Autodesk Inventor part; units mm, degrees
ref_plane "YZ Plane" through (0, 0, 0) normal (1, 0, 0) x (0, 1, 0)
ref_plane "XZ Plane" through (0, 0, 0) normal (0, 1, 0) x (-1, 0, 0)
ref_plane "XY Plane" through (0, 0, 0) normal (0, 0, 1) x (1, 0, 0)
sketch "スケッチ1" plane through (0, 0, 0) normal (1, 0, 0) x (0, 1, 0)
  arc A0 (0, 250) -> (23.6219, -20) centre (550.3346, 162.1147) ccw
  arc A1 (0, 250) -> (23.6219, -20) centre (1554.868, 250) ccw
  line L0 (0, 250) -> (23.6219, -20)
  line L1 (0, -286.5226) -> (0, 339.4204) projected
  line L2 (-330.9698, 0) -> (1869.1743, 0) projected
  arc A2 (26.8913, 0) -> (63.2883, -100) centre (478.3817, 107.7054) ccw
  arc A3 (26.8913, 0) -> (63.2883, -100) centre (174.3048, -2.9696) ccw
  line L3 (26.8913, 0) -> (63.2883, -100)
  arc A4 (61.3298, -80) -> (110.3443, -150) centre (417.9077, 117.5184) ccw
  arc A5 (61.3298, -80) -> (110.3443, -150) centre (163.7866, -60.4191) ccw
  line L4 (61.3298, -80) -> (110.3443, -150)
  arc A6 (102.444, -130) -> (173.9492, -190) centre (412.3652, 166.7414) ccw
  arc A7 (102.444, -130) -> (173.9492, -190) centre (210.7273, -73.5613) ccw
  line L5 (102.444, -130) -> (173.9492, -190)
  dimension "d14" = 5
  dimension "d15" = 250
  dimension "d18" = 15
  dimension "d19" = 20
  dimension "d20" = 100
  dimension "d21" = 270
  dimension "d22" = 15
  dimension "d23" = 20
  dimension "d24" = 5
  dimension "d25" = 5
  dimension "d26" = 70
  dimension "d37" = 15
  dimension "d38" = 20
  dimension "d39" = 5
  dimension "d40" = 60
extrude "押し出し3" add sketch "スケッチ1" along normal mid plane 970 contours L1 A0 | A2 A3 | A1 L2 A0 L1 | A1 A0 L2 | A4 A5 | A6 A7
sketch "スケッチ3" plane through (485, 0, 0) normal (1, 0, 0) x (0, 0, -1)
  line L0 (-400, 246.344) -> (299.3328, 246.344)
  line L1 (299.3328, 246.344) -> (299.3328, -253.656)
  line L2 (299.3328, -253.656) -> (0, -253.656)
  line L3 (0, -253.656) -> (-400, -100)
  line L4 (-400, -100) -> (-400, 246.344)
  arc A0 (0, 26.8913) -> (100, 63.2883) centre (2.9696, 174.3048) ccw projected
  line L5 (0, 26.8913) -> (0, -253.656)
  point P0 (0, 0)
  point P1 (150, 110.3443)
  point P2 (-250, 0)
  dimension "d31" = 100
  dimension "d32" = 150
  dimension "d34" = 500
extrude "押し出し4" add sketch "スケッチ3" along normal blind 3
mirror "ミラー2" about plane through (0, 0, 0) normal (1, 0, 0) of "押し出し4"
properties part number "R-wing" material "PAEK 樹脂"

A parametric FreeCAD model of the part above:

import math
import FreeCAD as App
import Part
import Sketcher

V = App.Vector
Q = App.Units.Quantity


def add_polygon(sketch, points):
    """Adds a closed chain of lines whose ends are joined by coincident constraints."""
    first, n = sketch.GeometryCount, len(points)
    for a, b in zip(points, points[1:] + points[:1]):
        sketch.addGeometry(Part.LineSegment(App.Vector(*a, 0), App.Vector(*b, 0)), False)
    for i in range(n):
        sketch.addConstraint(Sketcher.Constraint("Coincident", first + i, 2, first + (i + 1) % n, 1))

doc = App.newDocument("Part")
body = doc.addObject("PartDesign::Body", "Body")
body.AllowCompound = True

# Sketch on YZ plane
sketch1 = body.newObject("Sketcher::SketchObject", "Sketch")
sketch1.AttachmentSupport = (doc.getObject("YZ_Plane"), [""])
sketch1.MapMode = "FlatFace"
sketch1.addGeometry([
    Part.ArcOfCircle(Part.Circle(V(550, 162, 0), V(0, 0, 1), 557), math.radians(171), math.radians(199)),  # 0
    Part.ArcOfCircle(Part.Circle(V(1555, 250, 0), V(0, 0, 1), 1555), math.radians(-180), math.radians(-170)),  # 1
    Part.ArcOfCircle(Part.Circle(V(478, 108, 0), V(0, 0, 1), 464), math.radians(-166.58), math.radians(-153.42)),  # 2
    Part.ArcOfCircle(Part.Circle(V(174, -3, 0), V(0, 0, 1), 147), math.radians(179), math.radians(221)),  # 3
    Part.ArcOfCircle(Part.Circle(V(418, 118, 0), V(0, 0, 1), 408), math.radians(-151.02), math.radians(-138.98)),  # 4
    Part.ArcOfCircle(Part.Circle(V(164, -60, 0), V(0, 0, 1), 104), math.radians(-169), math.radians(-121)),  # 5
    Part.ArcOfCircle(Part.Circle(V(412, 167, 0), V(0, 0, 1), 429), math.radians(-136.24), math.radians(-123.76)),  # 6
    Part.ArcOfCircle(Part.Circle(V(211, -74, 0), V(0, 0, 1), 122), math.radians(-152), math.radians(-108)),  # 7
], False)
sketch1.addConstraint([
    Sketcher.Constraint("Coincident", 0, 1, 1, 1),
    Sketcher.Constraint("Coincident", 1, 2, 0, 2),
    Sketcher.Constraint("Coincident", 2, 1, 3, 1),
    Sketcher.Constraint("Coincident", 3, 2, 2, 2),
    Sketcher.Constraint("Coincident", 4, 1, 5, 1),
    Sketcher.Constraint("Coincident", 5, 2, 4, 2),
    Sketcher.Constraint("Coincident", 6, 1, 7, 1),
    Sketcher.Constraint("Coincident", 7, 2, 6, 2),
    Sketcher.Constraint("PointOnObject", 0, 1, -2),
    Sketcher.Constraint("PointOnObject", 2, 1, -1),
    Sketcher.Constraint("DistanceY", -1, 1, 0, 1, Q("250 mm")),
    Sketcher.Constraint("DistanceY", 1, 2, -1, 1, Q("20 mm")),
    Sketcher.Constraint("DistanceY", 3, 2, -1, 1, Q("100 mm")),
    Sketcher.Constraint("DistanceY", 3, 2, 4, 1, Q("20 mm")),
    Sketcher.Constraint("DistanceY", 5, 2, 4, 1, Q("70 mm")),
    Sketcher.Constraint("DistanceY", 5, 2, 6, 1, Q("20 mm")),
    Sketcher.Constraint("DistanceY", 7, 2, 6, 1, Q("60 mm")),
    Sketcher.Constraint("Radius", 2, Q("464.162 mm")),
    Sketcher.Constraint("Radius", 5, Q("104.311 mm")),
    Sketcher.Constraint("Radius", 7, Q("122.109 mm")),
    Sketcher.Constraint("DistanceY", -1, 1, 1, 3, Q("250.0002 mm")),
    Sketcher.Constraint("Radius", 0, Q("557.3078 mm")),
    Sketcher.Constraint("Radius", 1, Q("1554.8731 mm")),
    Sketcher.Constraint("Radius", 3, Q("147.4434 mm")),
    Sketcher.Constraint("Radius", 4, Q("407.6314 mm")),
    Sketcher.Constraint("Radius", 6, Q("429.0765 mm")),
    Sketcher.Constraint("DistanceX", -1, 1, 2, 3, Q("478.384 mm")),
    Sketcher.Constraint("DistanceY", -1, 1, 2, 3, Q("107.706 mm")),
    Sketcher.Constraint("DistanceY", 5, 3, -1, 1, Q("60.419 mm")),
    Sketcher.Constraint("DistanceX", -1, 1, 6, 1, Q("102.444 mm")),
    Sketcher.Constraint("DistanceX", 3, 3, 4, 3, Q("243.605 mm")),
    Sketcher.Constraint("DistanceY", 3, 3, 6, 3, Q("169.711 mm")),
])
pad1 = body.newObject("PartDesign::Pad", "Pad")
pad1.Profile = sketch1
pad1.Length = 970
pad1.Midplane = True

# Sketch on YZ plane
sketch2 = body.newObject("Sketcher::SketchObject", "Sketch001")
sketch2.AttachmentSupport = (doc.getObject("YZ_Plane"), [""])
sketch2.MapMode = "FlatFace"
sketch2.AttachmentOffset = App.Placement(V(0, 0, 485), App.Rotation())
add_polygon(sketch2, [(246, -299), (246, 400), (-100, 400), (-254, 0), (-254, -299)])  # lines 0-4
sketch2.addConstraint([
    Sketcher.Constraint("Vertical", 0),
    Sketcher.Constraint("Horizontal", 1),
    Sketcher.Constraint("Vertical", 3),
    Sketcher.Constraint("Horizontal", 4),
    Sketcher.Constraint("PointOnObject", 2, 2, -1),
    Sketcher.Constraint("DistanceX", 4, 1, 4, 2, Q("500 mm")),
    Sketcher.Constraint("DistanceX", 1, 2, -1, 1, Q("100 mm")),
    Sketcher.Constraint("DistanceY", -1, 1, 0, 2, Q("400 mm")),
    Sketcher.Constraint("DistanceX", 1, 2, 1, 1, Q("346.344 mm")),
    Sketcher.Constraint("DistanceY", 0, 1, 0, 2, Q("699.3328 mm")),
])
pad2 = body.newObject("PartDesign::Pad", "Pad001")
pad2.Profile = sketch2
pad2.Length = 3
doc.recompute()

mirrored = body.newObject("PartDesign::Mirrored", "Mirrored")
mirrored.Originals = [pad2]
mirrored.MirrorPlane = (doc.getObject("YZ_Plane"), [""])
body.Tip = mirrored

doc.recompute()
